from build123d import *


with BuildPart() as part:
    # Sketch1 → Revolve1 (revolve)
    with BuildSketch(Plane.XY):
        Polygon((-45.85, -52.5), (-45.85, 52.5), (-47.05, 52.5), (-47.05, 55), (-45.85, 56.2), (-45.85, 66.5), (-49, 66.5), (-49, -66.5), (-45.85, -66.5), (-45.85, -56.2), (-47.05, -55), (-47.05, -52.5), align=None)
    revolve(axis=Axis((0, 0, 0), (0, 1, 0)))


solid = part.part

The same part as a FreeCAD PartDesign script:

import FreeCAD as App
import Part
import Sketcher

doc = App.newDocument("Part")
body = doc.addObject("PartDesign::Body", "Body")

# Sketch on XY plane
sketch1 = doc.addObject("Sketcher::SketchObject", "Sketch")
body.addObject(sketch1)
sketch1.AttachmentSupport = (doc.XY_Plane, [""])
sketch1.MapMode = "FlatFace"
sketch1.addGeometry(Part.LineSegment(App.Vector(-45.9, -52.5, 0), App.Vector(-45.9, 52.5, 0)), False)
sketch1.addGeometry(Part.LineSegment(App.Vector(-45.9, 52.5, 0), App.Vector(-47, 52.5, 0)), False)
sketch1.addGeometry(Part.LineSegment(App.Vector(-47, 52.5, 0), App.Vector(-47, 55, 0)), False)
sketch1.addGeometry(Part.LineSegment(App.Vector(-47, 55, 0), App.Vector(-45.9, 56.2, 0)), False)
sketch1.addGeometry(Part.LineSegment(App.Vector(-45.9, 56.2, 0), App.Vector(-45.9, 66.5, 0)), False)
sketch1.addGeometry(Part.LineSegment(App.Vector(-45.9, 66.5, 0), App.Vector(-49, 66.5, 0)), False)
sketch1.addGeometry(Part.LineSegment(App.Vector(-49, 66.5, 0), App.Vector(-49, -66.5, 0)), False)
sketch1.addGeometry(Part.LineSegment(App.Vector(-49, -66.5, 0), App.Vector(-45.9, -66.5, 0)), False)
sketch1.addGeometry(Part.LineSegment(App.Vector(-45.9, -66.5, 0), App.Vector(-45.9, -56.2, 0)), False)
sketch1.addGeometry(Part.LineSegment(App.Vector(-45.9, -56.2, 0), App.Vector(-47, -55, 0)), False)
sketch1.addGeometry(Part.LineSegment(App.Vector(-47, -55, 0), App.Vector(-47, -52.5, 0)), False)
sketch1.addGeometry(Part.LineSegment(App.Vector(-47, -52.5, 0), App.Vector(-45.9, -52.5, 0)), False)
sketch1.addConstraint(Sketcher.Constraint("Coincident", 0, 2, 1, 1))
sketch1.addConstraint(Sketcher.Constraint("Coincident", 1, 2, 2, 1))
sketch1.addConstraint(Sketcher.Constraint("Coincident", 2, 2, 3, 1))
sketch1.addConstraint(Sketcher.Constraint("Coincident", 3, 2, 4, 1))
sketch1.addConstraint(Sketcher.Constraint("Coincident", 4, 2, 5, 1))
sketch1.addConstraint(Sketcher.Constraint("Coincident", 5, 2, 6, 1))
sketch1.addConstraint(Sketcher.Constraint("Coincident", 6, 2, 7, 1))
sketch1.addConstraint(Sketcher.Constraint("Coincident", 7, 2, 8, 1))
sketch1.addConstraint(Sketcher.Constraint("Coincident", 8, 2, 9, 1))
sketch1.addConstraint(Sketcher.Constraint("Coincident", 9, 2, 10, 1))
sketch1.addConstraint(Sketcher.Constraint("Coincident", 10, 2, 11, 1))
sketch1.addConstraint(Sketcher.Constraint("Coincident", 11, 2, 0, 1))
sketch1.addConstraint(Sketcher.Constraint("Vertical", 0))
sketch1.addConstraint(Sketcher.Constraint("Horizontal", 1))
sketch1.addConstraint(Sketcher.Constraint("Vertical", 2))
sketch1.addConstraint(Sketcher.Constraint("Vertical", 4))
sketch1.addConstraint(Sketcher.Constraint("Horizontal", 5))
sketch1.addConstraint(Sketcher.Constraint("Vertical", 6))
sketch1.addConstraint(Sketcher.Constraint("Horizontal", 7))
sketch1.addConstraint(Sketcher.Constraint("Vertical", 8))
sketch1.addConstraint(Sketcher.Constraint("Vertical", 10))
sketch1.addConstraint(Sketcher.Constraint("Horizontal", 11))
sketch1.addConstraint(Sketcher.Constraint("Symmetric", 4, 2, 7, 2, -1))
sketch1.addConstraint(Sketcher.Constraint("Symmetric", 2, 2, 9, 2, -1))
sketch1.addConstraint(Sketcher.Constraint("Perpendicular", 3, 9))
sketch1.addConstraint(Sketcher.Constraint("Vertical", 0, 2, 3, 2))
sketch1.addConstraint(Sketcher.Constraint("Equal", 4, 8))
sketch1.addConstraint(Sketcher.Constraint("Equal", 2, 10))
sketch1.addConstraint(Sketcher.Constraint("DistanceY", 0, 1, 0, 2, 105.0))
sketch1.addConstraint(Sketcher.Constraint("DistanceY", 6, 2, 6, 1, 133.0))
sketch1.addConstraint(Sketcher.Constraint("DistanceX", 1, 2, 1, 1, 1.2))
sketch1.addConstraint(Sketcher.Constraint("DistanceY", 2, 1, 2, 2, 2.5))
sketch1.addConstraint(Sketcher.Constraint("DistanceX", 5, 2, -1, 1, 49.0))
sketch1.addConstraint(Sketcher.Constraint("DistanceX", 5, 2, 5, 1, 3.15))
revolution = doc.addObject("PartDesign::Revolution", "Revolution")
body.addObject(revolution)
revolution.Profile = sketch1
revolution.ReferenceAxis = (sketch1, ["V_Axis"])
revolution.Angle = 360

doc.recompute()
